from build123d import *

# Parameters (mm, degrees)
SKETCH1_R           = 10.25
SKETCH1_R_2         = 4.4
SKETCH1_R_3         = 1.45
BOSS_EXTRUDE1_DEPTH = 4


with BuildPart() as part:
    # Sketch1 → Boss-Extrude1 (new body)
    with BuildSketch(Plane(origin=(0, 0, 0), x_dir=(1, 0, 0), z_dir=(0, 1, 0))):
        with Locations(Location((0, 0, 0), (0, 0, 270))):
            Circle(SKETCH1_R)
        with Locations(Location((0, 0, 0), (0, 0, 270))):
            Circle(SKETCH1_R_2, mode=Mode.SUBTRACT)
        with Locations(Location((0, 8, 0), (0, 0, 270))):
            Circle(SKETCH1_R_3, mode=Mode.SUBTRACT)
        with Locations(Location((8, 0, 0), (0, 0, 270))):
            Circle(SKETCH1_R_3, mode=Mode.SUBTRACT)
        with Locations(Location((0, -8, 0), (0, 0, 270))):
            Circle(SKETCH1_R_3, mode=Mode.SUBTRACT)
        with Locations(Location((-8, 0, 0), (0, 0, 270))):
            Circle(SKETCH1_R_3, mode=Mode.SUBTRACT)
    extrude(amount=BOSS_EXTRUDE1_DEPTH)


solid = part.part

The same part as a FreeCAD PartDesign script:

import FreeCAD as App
import Part
import Sketcher

V = App.Vector
Q = App.Units.Quantity

doc = App.newDocument("Part")
body = doc.addObject("PartDesign::Body", "Body")

# Sketch on XZ plane
sketch1 = body.newObject("Sketcher::SketchObject", "Sketch")
sketch1.AttachmentSupport = (doc.getObject("XZ_Plane"), [""])
sketch1.MapMode = "FlatFace"
sketch1.addGeometry([
    Part.Circle(V(0, 0, 0), V(0, 0, 1), 10.2),  # 0
    Part.Circle(V(0, -8, 0), V(0, 0, 1), 1.4),  # 1
    Part.Circle(V(-8, 0, 0), V(0, 0, 1), 1.4),  # 2
    Part.Circle(V(0, 0, 0), V(0, 0, 1), 4.4),  # 3
    Part.Circle(V(0, 8, 0), V(0, 0, 1), 1.4),  # 4
    Part.Circle(V(8, 0, 0), V(0, 0, 1), 1.4),  # 5
], False)
sketch1.addConstraint([
    Sketcher.Constraint("Coincident", 0, 3, -1, 1),
    Sketcher.Constraint("Coincident", 3, 3, -1, 1),
    Sketcher.Constraint("Equal", 1, 2),
    Sketcher.Constraint("Equal", 2, 4),
    Sketcher.Constraint("Equal", 4, 5),
    Sketcher.Constraint("Symmetric", 1, 3, 4, 3, -1, 1),
    Sketcher.Constraint("Symmetric", 2, 3, 5, 3, -1, 1),
    Sketcher.Constraint("PointOnObject", 1, 3, -2),
    Sketcher.Constraint("PointOnObject", 2, 3, -1),
    Sketcher.Constraint("Diameter", 0, Q("20.5 mm")),
    Sketcher.Constraint("Diameter", 1, Q("2.9 mm")),
    Sketcher.Constraint("Diameter", 3, Q("8.8 mm")),
    Sketcher.Constraint("DistanceY", 1, 3, -1, 1, Q("8 mm")),
    Sketcher.Constraint("DistanceX", 2, 3, -1, 1, Q("8 mm")),
])
pad1 = body.newObject("PartDesign::Pad", "Pad")
pad1.Profile = sketch1
pad1.Length = 4
pad1.Reversed = True

doc.recompute()
